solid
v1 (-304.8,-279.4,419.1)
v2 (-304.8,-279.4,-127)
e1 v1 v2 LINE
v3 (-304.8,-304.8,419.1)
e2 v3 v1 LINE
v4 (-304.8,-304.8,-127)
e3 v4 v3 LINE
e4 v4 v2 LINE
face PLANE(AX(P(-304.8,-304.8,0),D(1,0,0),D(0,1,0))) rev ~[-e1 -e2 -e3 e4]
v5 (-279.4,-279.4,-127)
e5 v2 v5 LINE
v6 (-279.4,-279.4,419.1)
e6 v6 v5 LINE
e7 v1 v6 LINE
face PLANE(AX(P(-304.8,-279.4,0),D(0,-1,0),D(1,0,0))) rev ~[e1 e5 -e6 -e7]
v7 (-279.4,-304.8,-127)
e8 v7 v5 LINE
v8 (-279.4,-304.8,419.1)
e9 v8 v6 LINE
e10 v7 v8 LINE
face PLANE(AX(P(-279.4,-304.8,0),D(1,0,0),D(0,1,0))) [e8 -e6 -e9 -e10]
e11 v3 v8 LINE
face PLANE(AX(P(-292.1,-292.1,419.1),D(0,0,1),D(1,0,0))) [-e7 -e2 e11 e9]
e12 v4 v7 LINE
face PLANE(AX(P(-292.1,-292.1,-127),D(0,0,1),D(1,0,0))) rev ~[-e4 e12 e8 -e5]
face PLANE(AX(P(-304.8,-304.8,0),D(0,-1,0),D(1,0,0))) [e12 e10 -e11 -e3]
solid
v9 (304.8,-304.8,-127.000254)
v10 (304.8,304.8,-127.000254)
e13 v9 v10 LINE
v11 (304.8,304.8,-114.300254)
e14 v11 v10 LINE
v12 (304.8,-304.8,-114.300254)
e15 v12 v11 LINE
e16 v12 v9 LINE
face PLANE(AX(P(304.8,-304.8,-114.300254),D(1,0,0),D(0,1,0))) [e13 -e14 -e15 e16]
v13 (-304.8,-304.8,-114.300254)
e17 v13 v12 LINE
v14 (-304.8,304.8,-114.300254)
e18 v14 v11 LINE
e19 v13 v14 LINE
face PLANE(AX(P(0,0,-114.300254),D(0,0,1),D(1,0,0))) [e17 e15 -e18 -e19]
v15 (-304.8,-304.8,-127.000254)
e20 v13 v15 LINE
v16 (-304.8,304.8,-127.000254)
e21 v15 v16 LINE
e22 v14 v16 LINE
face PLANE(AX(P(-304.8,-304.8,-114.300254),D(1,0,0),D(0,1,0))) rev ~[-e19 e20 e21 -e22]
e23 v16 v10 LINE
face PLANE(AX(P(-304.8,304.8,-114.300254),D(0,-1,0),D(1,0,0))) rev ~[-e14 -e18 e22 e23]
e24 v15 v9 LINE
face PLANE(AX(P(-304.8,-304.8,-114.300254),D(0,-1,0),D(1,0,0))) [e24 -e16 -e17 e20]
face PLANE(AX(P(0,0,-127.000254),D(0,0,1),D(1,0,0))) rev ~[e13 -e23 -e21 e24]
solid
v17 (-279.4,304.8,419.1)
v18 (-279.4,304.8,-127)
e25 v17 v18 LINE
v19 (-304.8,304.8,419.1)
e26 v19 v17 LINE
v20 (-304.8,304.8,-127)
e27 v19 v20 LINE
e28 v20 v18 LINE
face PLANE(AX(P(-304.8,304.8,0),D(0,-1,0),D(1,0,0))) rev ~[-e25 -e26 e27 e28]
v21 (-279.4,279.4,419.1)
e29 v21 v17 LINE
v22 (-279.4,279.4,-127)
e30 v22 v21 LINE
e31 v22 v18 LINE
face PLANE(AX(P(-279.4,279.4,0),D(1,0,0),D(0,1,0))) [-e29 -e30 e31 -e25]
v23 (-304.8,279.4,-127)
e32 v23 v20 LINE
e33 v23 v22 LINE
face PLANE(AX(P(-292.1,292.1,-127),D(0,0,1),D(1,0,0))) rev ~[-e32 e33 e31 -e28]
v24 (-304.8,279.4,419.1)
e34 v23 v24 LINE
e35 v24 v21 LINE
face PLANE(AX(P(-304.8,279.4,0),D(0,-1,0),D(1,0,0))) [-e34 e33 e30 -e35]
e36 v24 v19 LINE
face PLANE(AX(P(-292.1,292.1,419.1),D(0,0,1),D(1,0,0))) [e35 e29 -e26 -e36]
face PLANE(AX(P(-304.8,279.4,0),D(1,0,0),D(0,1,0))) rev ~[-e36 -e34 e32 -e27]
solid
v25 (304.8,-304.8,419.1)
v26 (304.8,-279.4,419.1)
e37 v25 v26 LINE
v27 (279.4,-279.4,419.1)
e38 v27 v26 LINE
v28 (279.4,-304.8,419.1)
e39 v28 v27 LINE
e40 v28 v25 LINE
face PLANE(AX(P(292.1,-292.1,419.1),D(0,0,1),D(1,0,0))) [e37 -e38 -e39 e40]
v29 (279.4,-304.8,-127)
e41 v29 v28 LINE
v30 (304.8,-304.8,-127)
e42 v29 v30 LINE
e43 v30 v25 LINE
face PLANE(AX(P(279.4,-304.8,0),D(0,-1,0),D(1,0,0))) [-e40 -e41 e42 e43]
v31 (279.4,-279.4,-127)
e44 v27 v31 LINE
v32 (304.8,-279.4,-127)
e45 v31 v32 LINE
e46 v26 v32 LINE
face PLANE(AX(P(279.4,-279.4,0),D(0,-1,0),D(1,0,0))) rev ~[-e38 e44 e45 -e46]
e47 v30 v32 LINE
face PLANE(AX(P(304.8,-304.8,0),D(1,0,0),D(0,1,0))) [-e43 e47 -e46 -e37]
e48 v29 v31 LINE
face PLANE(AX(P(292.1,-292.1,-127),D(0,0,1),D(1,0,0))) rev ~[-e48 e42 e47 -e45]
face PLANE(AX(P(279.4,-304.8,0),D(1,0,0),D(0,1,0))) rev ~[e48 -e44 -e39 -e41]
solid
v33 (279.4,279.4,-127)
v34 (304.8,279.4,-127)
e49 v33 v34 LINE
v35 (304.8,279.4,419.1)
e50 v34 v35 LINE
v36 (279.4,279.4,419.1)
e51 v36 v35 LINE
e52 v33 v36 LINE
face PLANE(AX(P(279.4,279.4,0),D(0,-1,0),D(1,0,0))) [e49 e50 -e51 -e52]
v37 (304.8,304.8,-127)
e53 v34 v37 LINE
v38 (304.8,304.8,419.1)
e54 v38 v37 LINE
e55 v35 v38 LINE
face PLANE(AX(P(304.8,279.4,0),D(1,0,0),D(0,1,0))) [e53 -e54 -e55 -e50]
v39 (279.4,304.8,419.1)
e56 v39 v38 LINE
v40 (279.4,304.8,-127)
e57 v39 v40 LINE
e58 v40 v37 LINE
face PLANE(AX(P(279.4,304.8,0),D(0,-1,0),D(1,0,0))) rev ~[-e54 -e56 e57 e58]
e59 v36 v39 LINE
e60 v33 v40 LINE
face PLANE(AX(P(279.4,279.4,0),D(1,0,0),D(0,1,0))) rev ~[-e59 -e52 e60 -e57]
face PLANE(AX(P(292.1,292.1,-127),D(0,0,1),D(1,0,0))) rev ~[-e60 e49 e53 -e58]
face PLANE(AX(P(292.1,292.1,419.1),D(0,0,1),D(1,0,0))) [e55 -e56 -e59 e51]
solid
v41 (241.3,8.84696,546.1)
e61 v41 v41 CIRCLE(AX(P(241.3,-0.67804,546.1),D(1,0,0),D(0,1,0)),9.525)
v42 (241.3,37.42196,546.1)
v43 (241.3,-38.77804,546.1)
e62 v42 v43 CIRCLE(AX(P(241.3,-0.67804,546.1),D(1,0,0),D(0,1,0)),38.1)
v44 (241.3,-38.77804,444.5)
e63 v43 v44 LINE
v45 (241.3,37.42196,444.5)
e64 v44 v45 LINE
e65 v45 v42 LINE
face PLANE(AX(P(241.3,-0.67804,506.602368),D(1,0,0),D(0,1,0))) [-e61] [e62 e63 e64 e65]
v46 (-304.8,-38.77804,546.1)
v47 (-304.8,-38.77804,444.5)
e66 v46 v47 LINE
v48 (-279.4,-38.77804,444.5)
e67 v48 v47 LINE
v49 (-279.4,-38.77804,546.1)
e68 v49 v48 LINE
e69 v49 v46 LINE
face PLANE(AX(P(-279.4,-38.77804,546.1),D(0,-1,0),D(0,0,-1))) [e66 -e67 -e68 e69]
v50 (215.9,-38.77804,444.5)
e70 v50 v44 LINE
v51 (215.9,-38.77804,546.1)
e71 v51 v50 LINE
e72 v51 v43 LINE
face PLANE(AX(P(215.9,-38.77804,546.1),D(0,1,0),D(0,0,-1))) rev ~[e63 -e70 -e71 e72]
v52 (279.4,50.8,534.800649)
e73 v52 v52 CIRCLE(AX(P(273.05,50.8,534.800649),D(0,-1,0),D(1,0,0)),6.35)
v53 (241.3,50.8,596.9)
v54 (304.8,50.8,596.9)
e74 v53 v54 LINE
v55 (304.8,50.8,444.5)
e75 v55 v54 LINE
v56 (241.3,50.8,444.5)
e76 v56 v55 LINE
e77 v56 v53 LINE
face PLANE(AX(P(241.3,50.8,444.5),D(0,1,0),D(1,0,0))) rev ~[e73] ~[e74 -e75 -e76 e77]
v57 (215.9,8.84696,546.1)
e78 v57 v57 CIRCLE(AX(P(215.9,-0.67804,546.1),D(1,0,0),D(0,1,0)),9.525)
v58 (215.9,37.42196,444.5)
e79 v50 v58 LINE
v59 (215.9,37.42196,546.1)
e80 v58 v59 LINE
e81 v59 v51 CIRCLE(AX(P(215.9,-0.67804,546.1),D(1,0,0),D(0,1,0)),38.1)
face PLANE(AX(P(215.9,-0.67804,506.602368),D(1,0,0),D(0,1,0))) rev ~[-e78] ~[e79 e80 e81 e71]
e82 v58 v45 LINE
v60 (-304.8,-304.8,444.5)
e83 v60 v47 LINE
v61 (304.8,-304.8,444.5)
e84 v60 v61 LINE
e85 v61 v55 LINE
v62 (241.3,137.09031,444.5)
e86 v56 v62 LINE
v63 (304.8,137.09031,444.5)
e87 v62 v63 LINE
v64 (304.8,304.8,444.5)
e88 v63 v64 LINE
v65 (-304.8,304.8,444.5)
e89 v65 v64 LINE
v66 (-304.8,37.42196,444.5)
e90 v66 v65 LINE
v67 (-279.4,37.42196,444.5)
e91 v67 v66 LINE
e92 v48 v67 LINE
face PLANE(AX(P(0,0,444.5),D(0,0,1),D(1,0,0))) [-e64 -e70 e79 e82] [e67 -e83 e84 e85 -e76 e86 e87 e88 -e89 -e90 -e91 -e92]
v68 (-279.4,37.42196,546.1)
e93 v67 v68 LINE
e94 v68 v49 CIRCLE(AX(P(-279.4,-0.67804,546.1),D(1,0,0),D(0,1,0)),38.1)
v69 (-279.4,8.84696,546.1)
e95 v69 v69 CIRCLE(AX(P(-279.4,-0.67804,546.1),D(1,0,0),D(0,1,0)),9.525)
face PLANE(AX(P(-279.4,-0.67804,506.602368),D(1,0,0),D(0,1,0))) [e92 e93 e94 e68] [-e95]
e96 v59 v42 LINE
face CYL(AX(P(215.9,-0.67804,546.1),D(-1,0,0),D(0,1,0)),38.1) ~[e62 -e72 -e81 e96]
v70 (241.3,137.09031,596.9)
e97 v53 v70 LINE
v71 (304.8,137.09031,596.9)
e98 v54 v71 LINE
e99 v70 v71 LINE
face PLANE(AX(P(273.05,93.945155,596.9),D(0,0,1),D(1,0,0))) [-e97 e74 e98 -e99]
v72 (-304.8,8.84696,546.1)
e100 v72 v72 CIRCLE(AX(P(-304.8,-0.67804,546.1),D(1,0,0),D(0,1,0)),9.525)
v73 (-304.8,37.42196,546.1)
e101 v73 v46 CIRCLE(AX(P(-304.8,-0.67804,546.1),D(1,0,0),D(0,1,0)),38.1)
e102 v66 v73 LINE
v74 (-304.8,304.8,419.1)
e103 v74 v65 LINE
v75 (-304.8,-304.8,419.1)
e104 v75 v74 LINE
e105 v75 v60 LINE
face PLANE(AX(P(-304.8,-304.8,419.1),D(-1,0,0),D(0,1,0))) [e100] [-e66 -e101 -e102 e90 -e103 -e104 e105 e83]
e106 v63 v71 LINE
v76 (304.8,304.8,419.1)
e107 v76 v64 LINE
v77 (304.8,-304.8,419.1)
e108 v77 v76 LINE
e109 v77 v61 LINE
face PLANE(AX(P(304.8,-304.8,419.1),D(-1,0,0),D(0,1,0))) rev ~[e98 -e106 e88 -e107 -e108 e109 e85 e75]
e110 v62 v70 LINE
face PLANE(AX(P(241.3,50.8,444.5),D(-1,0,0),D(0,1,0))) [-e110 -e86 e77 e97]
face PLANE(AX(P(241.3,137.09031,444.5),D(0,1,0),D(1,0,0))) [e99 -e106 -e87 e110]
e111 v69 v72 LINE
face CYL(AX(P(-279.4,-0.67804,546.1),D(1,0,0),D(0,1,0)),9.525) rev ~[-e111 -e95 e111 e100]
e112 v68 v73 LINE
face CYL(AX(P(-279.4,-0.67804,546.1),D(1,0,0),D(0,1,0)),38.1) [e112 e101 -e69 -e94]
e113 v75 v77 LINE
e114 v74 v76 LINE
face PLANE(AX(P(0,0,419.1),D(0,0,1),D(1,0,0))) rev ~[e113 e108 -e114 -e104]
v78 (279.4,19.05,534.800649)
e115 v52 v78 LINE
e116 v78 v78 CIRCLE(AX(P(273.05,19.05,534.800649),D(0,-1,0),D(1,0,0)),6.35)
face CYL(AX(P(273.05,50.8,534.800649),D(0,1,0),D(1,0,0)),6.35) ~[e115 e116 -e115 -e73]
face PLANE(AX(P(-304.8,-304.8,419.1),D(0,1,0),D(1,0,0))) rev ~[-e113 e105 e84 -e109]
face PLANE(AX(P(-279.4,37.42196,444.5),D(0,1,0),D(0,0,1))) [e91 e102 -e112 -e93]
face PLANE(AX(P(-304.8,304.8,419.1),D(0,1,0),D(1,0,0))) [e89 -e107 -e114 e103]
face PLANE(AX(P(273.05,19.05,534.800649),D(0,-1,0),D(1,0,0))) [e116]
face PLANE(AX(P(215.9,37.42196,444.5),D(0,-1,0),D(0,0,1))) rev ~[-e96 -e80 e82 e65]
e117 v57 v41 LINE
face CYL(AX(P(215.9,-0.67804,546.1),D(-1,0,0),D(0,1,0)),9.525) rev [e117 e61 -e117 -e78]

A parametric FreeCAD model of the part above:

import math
import FreeCAD as App
import Part
import Sketcher
Q = App.Units.Quantity

doc = App.newDocument("Part")
body = doc.addObject("PartDesign::Body", "Body")

sketch1 = doc.addObject("Sketcher::SketchObject", "Sketch")
body.addObject(sketch1)
sketch1.AttachmentSupport = (doc.XY_Plane, [""])
sketch1.MapMode = "FlatFace"
sketch1.addGeometry([
    Part.LineSegment(App.Vector(-305, 305, 0), App.Vector(-305, 279, 0)),
    Part.LineSegment(App.Vector(-305, 279, 0), App.Vector(-279, 279, 0)),
    Part.LineSegment(App.Vector(-279, 279, 0), App.Vector(-279, 305, 0)),
    Part.LineSegment(App.Vector(-279, 305, 0), App.Vector(-305, 305, 0)),
], False)
sketch1.addConstraint([
    Sketcher.Constraint("Coincident", 0, 2, 1, 1),
    Sketcher.Constraint("Coincident", 1, 2, 2, 1),
    Sketcher.Constraint("Coincident", 2, 2, 3, 1),
    Sketcher.Constraint("Coincident", 3, 2, 0, 1),
    Sketcher.Constraint("Vertical", 0),
    Sketcher.Constraint("Horizontal", 1),
    Sketcher.Constraint("Vertical", 2),
    Sketcher.Constraint("Horizontal", 3),
    Sketcher.Constraint("Equal", 3, 0),
    Sketcher.Constraint("DistanceX", 1, 1, 1, 2, Q("1 in")),
    Sketcher.Constraint("DistanceX", 0, 2, -1, 1, Q("12 in")),
    Sketcher.Constraint("DistanceY", -1, 1, 0, 2, Q("11 in")),
])
pad1 = doc.addObject("PartDesign::Pad", "Pad")
body.addObject(pad1)
pad1.Profile = sketch1
pad1.Type = "TwoLengths"
pad1.Length = Q("16.5 in")
pad1.Length2 = Q("5 in")
body2 = doc.addObject("PartDesign::Body", "Body001")

sketch2 = doc.addObject("Sketcher::SketchObject", "Sketch001")
body2.addObject(sketch2)
sketch2.AttachmentSupport = (doc.getObject("XY_Plane001"), [""])
sketch2.MapMode = "FlatFace"
sketch2.addGeometry([
    Part.LineSegment(App.Vector(279, 305, 0), App.Vector(279, 279, 0)),
    Part.LineSegment(App.Vector(279, 279, 0), App.Vector(305, 279, 0)),
    Part.LineSegment(App.Vector(305, 279, 0), App.Vector(305, 305, 0)),
    Part.LineSegment(App.Vector(305, 305, 0), App.Vector(279, 305, 0)),
], False)
sketch2.addConstraint([
    Sketcher.Constraint("Coincident", 0, 2, 1, 1),
    Sketcher.Constraint("Coincident", 1, 2, 2, 1),
    Sketcher.Constraint("Coincident", 2, 2, 3, 1),
    Sketcher.Constraint("Coincident", 3, 2, 0, 1),
    Sketcher.Constraint("Vertical", 0),
    Sketcher.Constraint("Horizontal", 1),
    Sketcher.Constraint("Vertical", 2),
    Sketcher.Constraint("Horizontal", 3),
    Sketcher.Constraint("Equal", 3, 0),
    Sketcher.Constraint("DistanceX", 1, 1, 1, 2, Q("1 in")),
    Sketcher.Constraint("DistanceX", -1, 1, 0, 2, Q("11 in")),
    Sketcher.Constraint("DistanceY", -1, 1, 0, 2, Q("11 in")),
])
pad2 = doc.addObject("PartDesign::Pad", "Pad001")
body2.addObject(pad2)
pad2.Profile = sketch2
pad2.Type = "TwoLengths"
pad2.Length = Q("16.5 in")
pad2.Length2 = Q("5 in")
body3 = doc.addObject("PartDesign::Body", "Body002")

sketch3 = doc.addObject("Sketcher::SketchObject", "Sketch002")
body3.addObject(sketch3)
sketch3.AttachmentSupport = (doc.getObject("XY_Plane002"), [""])
sketch3.MapMode = "FlatFace"
sketch3.addGeometry([
    Part.LineSegment(App.Vector(279, -279, 0), App.Vector(279, -305, 0)),
    Part.LineSegment(App.Vector(279, -305, 0), App.Vector(305, -305, 0)),
    Part.LineSegment(App.Vector(305, -305, 0), App.Vector(305, -279, 0)),
    Part.LineSegment(App.Vector(305, -279, 0), App.Vector(279, -279, 0)),
], False)
sketch3.addConstraint([
    Sketcher.Constraint("Coincident", 0, 2, 1, 1),
    Sketcher.Constraint("Coincident", 1, 2, 2, 1),
    Sketcher.Constraint("Coincident", 2, 2, 3, 1),
    Sketcher.Constraint("Coincident", 3, 2, 0, 1),
    Sketcher.Constraint("Vertical", 0),
    Sketcher.Constraint("Horizontal", 1),
    Sketcher.Constraint("Vertical", 2),
    Sketcher.Constraint("Horizontal", 3),
    Sketcher.Constraint("Equal", 3, 0),
    Sketcher.Constraint("DistanceX", 1, 1, 1, 2, Q("1 in")),
    Sketcher.Constraint("DistanceX", -1, 1, 0, 2, Q("11 in")),
    Sketcher.Constraint("DistanceY", 0, 2, -1, 1, Q("12 in")),
])
pad3 = doc.addObject("PartDesign::Pad", "Pad002")
body3.addObject(pad3)
pad3.Profile = sketch3
pad3.Type = "TwoLengths"
pad3.Length = Q("16.5 in")
pad3.Length2 = Q("5 in")
body4 = doc.addObject("PartDesign::Body", "Body003")

sketch4 = doc.addObject("Sketcher::SketchObject", "Sketch003")
body4.addObject(sketch4)
sketch4.AttachmentSupport = (doc.getObject("XY_Plane003"), [""])
sketch4.MapMode = "FlatFace"
sketch4.addGeometry([
    Part.LineSegment(App.Vector(-305, -279, 0), App.Vector(-305, -305, 0)),
    Part.LineSegment(App.Vector(-305, -305, 0), App.Vector(-279, -305, 0)),
    Part.LineSegment(App.Vector(-279, -305, 0), App.Vector(-279, -279, 0)),
    Part.LineSegment(App.Vector(-279, -279, 0), App.Vector(-305, -279, 0)),
], False)
sketch4.addConstraint([
    Sketcher.Constraint("Coincident", 0, 2, 1, 1),
    Sketcher.Constraint("Coincident", 1, 2, 2, 1),
    Sketcher.Constraint("Coincident", 2, 2, 3, 1),
    Sketcher.Constraint("Coincident", 3, 2, 0, 1),
    Sketcher.Constraint("Vertical", 0),
    Sketcher.Constraint("Horizontal", 1),
    Sketcher.Constraint("Vertical", 2),
    Sketcher.Constraint("Horizontal", 3),
    Sketcher.Constraint("Equal", 3, 0),
    Sketcher.Constraint("DistanceX", 1, 1, 1, 2, Q("1 in")),
    Sketcher.Constraint("DistanceX", 0, 2, -1, 1, Q("12 in")),
    Sketcher.Constraint("DistanceY", 0, 2, -1, 1, Q("12 in")),
])
pad4 = doc.addObject("PartDesign::Pad", "Pad003")
body4.addObject(pad4)
pad4.Profile = sketch4
pad4.Type = "TwoLengths"
pad4.Length = Q("16.5 in")
pad4.Length2 = Q("5 in")
body5 = doc.addObject("PartDesign::Body", "Body004")

sketch5 = doc.addObject("Sketcher::SketchObject", "Sketch004")
body5.addObject(sketch5)
sketch5.AttachmentSupport = (doc.getObject("XY_Plane004"), [""])
sketch5.MapMode = "FlatFace"
sketch5.AttachmentOffset = App.Placement(App.Vector(0, 0, 16.5 * 25.4), App.Rotation())
sketch5.addGeometry([
    Part.LineSegment(App.Vector(-305, 305, 0), App.Vector(-305, -305, 0)),
    Part.LineSegment(App.Vector(-305, -305, 0), App.Vector(305, -305, 0)),
    Part.LineSegment(App.Vector(305, -305, 0), App.Vector(305, 305, 0)),
    Part.LineSegment(App.Vector(305, 305, 0), App.Vector(-305, 305, 0)),
], False)
sketch5.addConstraint([
    Sketcher.Constraint("Coincident", 0, 2, 1, 1),
    Sketcher.Constraint("Coincident", 1, 2, 2, 1),
    Sketcher.Constraint("Coincident", 2, 2, 3, 1),
    Sketcher.Constraint("Coincident", 3, 2, 0, 1),
    Sketcher.Constraint("Vertical", 0),
    Sketcher.Constraint("Horizontal", 1),
    Sketcher.Constraint("Vertical", 2),
    Sketcher.Constraint("Horizontal", 3),
    Sketcher.Constraint("Symmetric", 0, 2, 2, 2, -1, 1),
    Sketcher.Constraint("Equal", 3, 0),
    Sketcher.Constraint("DistanceX", 1, 1, 1, 2, Q("24 in")),
])
pad5 = doc.addObject("PartDesign::Pad", "Pad004")
body5.addObject(pad5)
pad5.Profile = sketch5
pad5.Length = Q("1 in")

sketch6 = doc.addObject("Sketcher::SketchObject", "Sketch005")
body5.addObject(sketch6)
sketch6.AttachmentSupport = (doc.getObject("YZ_Plane004"), [""])
sketch6.MapMode = "FlatFace"
sketch6.AttachmentOffset = App.Placement(App.Vector(0, 0, -11 * 25.4), App.Rotation())
sketch6.addGeometry([
    Part.LineSegment(App.Vector(-39, 546, 0), App.Vector(-39, 444, 0)),
    Part.LineSegment(App.Vector(-39, 444, 0), App.Vector(37, 444, 0)),
    Part.LineSegment(App.Vector(37, 444, 0), App.Vector(37, 546, 0)),
    Part.ArcOfCircle(Part.Circle(App.Vector(-1, 546, 0), App.Vector(0, 0, 1), 38), math.radians(0), math.radians(180)),
    Part.Circle(App.Vector(-1, 546, 0), App.Vector(0, 0, 1), 10),
], False)
sketch6.addConstraint([
    Sketcher.Constraint("Coincident", 0, 2, 1, 1),
    Sketcher.Constraint("Coincident", 1, 2, 2, 1),
    Sketcher.Constraint("Tangent", 2, 2, 3, 1),
    Sketcher.Constraint("Tangent", 3, 2, 0, 1),
    Sketcher.Constraint("Vertical", 0),
    Sketcher.Constraint("Horizontal", 1),
    Sketcher.Constraint("Vertical", 2),
    Sketcher.Constraint("Coincident", 4, 3, 3, 3),
    Sketcher.Constraint("Radius", 3, Q("1.5 in")),
    Sketcher.Constraint("Diameter", 4, Q("0.75 in")),
    Sketcher.Constraint("DistanceY", 0, 2, 0, 1, Q("4 in")),
    Sketcher.Constraint("DistanceY", -1, 1, 3, 3, Q("21.5 in")),
    Sketcher.Constraint("DistanceX", 3, 3, -1, 1, Q("0.67804 mm")),
])
pad6 = doc.addObject("PartDesign::Pad", "Pad005")
body5.addObject(pad6)
pad6.Profile = sketch6
pad6.Length = Q("1 in")
pad6.Reversed = True

sketch7 = doc.addObject("Sketcher::SketchObject", "Sketch006")
body5.addObject(sketch7)
sketch7.AttachmentSupport = (doc.getObject("YZ_Plane004"), [""])
sketch7.MapMode = "FlatFace"
sketch7.AttachmentOffset = App.Placement(App.Vector(0, 0, 8.5 * 25.4), App.Rotation())
sketch7.addGeometry([
    Part.LineSegment(App.Vector(-39, 546, 0), App.Vector(-39, 444, 0)),
    Part.LineSegment(App.Vector(-39, 444, 0), App.Vector(37, 444, 0)),
    Part.LineSegment(App.Vector(37, 444, 0), App.Vector(37, 546, 0)),
    Part.ArcOfCircle(Part.Circle(App.Vector(-1, 546, 0), App.Vector(0, 0, 1), 38), math.radians(0), math.radians(180)),
    Part.Circle(App.Vector(-1, 546, 0), App.Vector(0, 0, 1), 10),
], False)
sketch7.addConstraint([
    Sketcher.Constraint("Coincident", 0, 2, 1, 1),
    Sketcher.Constraint("Coincident", 1, 2, 2, 1),
    Sketcher.Constraint("Tangent", 2, 2, 3, 1),
    Sketcher.Constraint("Tangent", 3, 2, 0, 1),
    Sketcher.Constraint("Vertical", 0),
    Sketcher.Constraint("Horizontal", 1),
    Sketcher.Constraint("Vertical", 2),
    Sketcher.Constraint("Coincident", 4, 3, 3, 3),
    Sketcher.Constraint("Radius", 3, Q("1.5 in")),
    Sketcher.Constraint("Diameter", 4, Q("0.75 in")),
    Sketcher.Constraint("DistanceY", 0, 2, 0, 1, Q("4 in")),
    Sketcher.Constraint("DistanceY", -1, 1, 3, 3, Q("21.5 in")),
    Sketcher.Constraint("DistanceX", 3, 3, -1, 1, Q("0.67804 mm")),
])
pad7 = doc.addObject("PartDesign::Pad", "Pad006")
body5.addObject(pad7)
pad7.Profile = sketch7
pad7.Length = Q("1 in")

sketch8 = doc.addObject("Sketcher::SketchObject", "Sketch007")
body5.addObject(sketch8)
sketch8.AttachmentSupport = (doc.getObject("XY_Plane004"), [""])
sketch8.MapMode = "FlatFace"
sketch8.AttachmentOffset = App.Placement(App.Vector(0, 0, 17.5 * 25.4), App.Rotation())
sketch8.addGeometry([
    Part.LineSegment(App.Vector(241, 137, 0), App.Vector(241, 51, 0)),
    Part.LineSegment(App.Vector(241, 51, 0), App.Vector(305, 51, 0)),
    Part.LineSegment(App.Vector(305, 51, 0), App.Vector(305, 137, 0)),
    Part.LineSegment(App.Vector(305, 137, 0), App.Vector(241, 137, 0)),
], False)
sketch8.addConstraint([
    Sketcher.Constraint("Coincident", 0, 2, 1, 1),
    Sketcher.Constraint("Coincident", 1, 2, 2, 1),
    Sketcher.Constraint("Coincident", 2, 2, 3, 1),
    Sketcher.Constraint("Coincident", 3, 2, 0, 1),
    Sketcher.Constraint("Vertical", 0),
    Sketcher.Constraint("Horizontal", 1),
    Sketcher.Constraint("Vertical", 2),
    Sketcher.Constraint("Horizontal", 3),
    Sketcher.Constraint("DistanceX", 1, 1, 1, 2, Q("2.5 in")),
    Sketcher.Constraint("DistanceY", -1, 1, 0, 2, Q("2 in")),
    Sketcher.Constraint("DistanceX", -1, 1, 1, 2, Q("12 in")),
    Sketcher.Constraint("DistanceY", 0, 2, 0, 1, Q("86.29031 mm")),
])
pad8 = doc.addObject("PartDesign::Pad", "Pad007")
body5.addObject(pad8)
pad8.Profile = sketch8
pad8.Length = Q("6 in")

sketch9 = doc.addObject("Sketcher::SketchObject", "Sketch008")
body5.addObject(sketch9)
sketch9.AttachmentSupport = (doc.getObject("XZ_Plane004"), [""])
sketch9.MapMode = "FlatFace"
sketch9.AttachmentOffset = App.Placement(App.Vector(0, 0, -2 * 25.4), App.Rotation())
sketch9.addGeometry(Part.Circle(App.Vector(273, 535, 0), App.Vector(0, 0, 1), 6), False)
sketch9.addConstraint([
    Sketcher.Constraint("Diameter", 0, Q("0.5 in")),
    Sketcher.Constraint("DistanceX", -1, 1, 0, 3, Q("10.75 in")),
    Sketcher.Constraint("DistanceY", -1, 1, 0, 3, Q("534.800649 mm")),
])
pad9 = doc.addObject("PartDesign::Pad", "Pad008")
body5.addObject(pad9)
pad9.Profile = sketch9
pad9.Length = Q("1.25 in")
body6 = doc.addObject("PartDesign::Body", "Body005")

sketch10 = doc.addObject("Sketcher::SketchObject", "Sketch009")
body6.addObject(sketch10)
sketch10.AttachmentSupport = (doc.getObject("XY_Plane005"), [""])
sketch10.MapMode = "FlatFace"
sketch10.AttachmentOffset = App.Placement(App.Vector(0, 0, -114.300254), App.Rotation())
sketch10.addGeometry([
    Part.LineSegment(App.Vector(-305, 305, 0), App.Vector(-305, -305, 0)),
    Part.LineSegment(App.Vector(-305, -305, 0), App.Vector(305, -305, 0)),
    Part.LineSegment(App.Vector(305, -305, 0), App.Vector(305, 305, 0)),
    Part.LineSegment(App.Vector(305, 305, 0), App.Vector(-305, 305, 0)),
], False)
sketch10.addConstraint([
    Sketcher.Constraint("Coincident", 0, 2, 1, 1),
    Sketcher.Constraint("Coincident", 1, 2, 2, 1),
    Sketcher.Constraint("Coincident", 2, 2, 3, 1),
    Sketcher.Constraint("Coincident", 3, 2, 0, 1),
    Sketcher.Constraint("Vertical", 0),
    Sketcher.Constraint("Horizontal", 1),
    Sketcher.Constraint("Vertical", 2),
    Sketcher.Constraint("Horizontal", 3),
    Sketcher.Constraint("Symmetric", 0, 2, 2, 2, -1, 1),
    Sketcher.Constraint("Equal", 3, 0),
    Sketcher.Constraint("DistanceX", 1, 1, 1, 2, Q("24 in")),
])
pad10 = doc.addObject("PartDesign::Pad", "Pad009")
body6.addObject(pad10)
pad10.Profile = sketch10
pad10.Length = Q("0.5 in")
pad10.Reversed = True

doc.recompute()
